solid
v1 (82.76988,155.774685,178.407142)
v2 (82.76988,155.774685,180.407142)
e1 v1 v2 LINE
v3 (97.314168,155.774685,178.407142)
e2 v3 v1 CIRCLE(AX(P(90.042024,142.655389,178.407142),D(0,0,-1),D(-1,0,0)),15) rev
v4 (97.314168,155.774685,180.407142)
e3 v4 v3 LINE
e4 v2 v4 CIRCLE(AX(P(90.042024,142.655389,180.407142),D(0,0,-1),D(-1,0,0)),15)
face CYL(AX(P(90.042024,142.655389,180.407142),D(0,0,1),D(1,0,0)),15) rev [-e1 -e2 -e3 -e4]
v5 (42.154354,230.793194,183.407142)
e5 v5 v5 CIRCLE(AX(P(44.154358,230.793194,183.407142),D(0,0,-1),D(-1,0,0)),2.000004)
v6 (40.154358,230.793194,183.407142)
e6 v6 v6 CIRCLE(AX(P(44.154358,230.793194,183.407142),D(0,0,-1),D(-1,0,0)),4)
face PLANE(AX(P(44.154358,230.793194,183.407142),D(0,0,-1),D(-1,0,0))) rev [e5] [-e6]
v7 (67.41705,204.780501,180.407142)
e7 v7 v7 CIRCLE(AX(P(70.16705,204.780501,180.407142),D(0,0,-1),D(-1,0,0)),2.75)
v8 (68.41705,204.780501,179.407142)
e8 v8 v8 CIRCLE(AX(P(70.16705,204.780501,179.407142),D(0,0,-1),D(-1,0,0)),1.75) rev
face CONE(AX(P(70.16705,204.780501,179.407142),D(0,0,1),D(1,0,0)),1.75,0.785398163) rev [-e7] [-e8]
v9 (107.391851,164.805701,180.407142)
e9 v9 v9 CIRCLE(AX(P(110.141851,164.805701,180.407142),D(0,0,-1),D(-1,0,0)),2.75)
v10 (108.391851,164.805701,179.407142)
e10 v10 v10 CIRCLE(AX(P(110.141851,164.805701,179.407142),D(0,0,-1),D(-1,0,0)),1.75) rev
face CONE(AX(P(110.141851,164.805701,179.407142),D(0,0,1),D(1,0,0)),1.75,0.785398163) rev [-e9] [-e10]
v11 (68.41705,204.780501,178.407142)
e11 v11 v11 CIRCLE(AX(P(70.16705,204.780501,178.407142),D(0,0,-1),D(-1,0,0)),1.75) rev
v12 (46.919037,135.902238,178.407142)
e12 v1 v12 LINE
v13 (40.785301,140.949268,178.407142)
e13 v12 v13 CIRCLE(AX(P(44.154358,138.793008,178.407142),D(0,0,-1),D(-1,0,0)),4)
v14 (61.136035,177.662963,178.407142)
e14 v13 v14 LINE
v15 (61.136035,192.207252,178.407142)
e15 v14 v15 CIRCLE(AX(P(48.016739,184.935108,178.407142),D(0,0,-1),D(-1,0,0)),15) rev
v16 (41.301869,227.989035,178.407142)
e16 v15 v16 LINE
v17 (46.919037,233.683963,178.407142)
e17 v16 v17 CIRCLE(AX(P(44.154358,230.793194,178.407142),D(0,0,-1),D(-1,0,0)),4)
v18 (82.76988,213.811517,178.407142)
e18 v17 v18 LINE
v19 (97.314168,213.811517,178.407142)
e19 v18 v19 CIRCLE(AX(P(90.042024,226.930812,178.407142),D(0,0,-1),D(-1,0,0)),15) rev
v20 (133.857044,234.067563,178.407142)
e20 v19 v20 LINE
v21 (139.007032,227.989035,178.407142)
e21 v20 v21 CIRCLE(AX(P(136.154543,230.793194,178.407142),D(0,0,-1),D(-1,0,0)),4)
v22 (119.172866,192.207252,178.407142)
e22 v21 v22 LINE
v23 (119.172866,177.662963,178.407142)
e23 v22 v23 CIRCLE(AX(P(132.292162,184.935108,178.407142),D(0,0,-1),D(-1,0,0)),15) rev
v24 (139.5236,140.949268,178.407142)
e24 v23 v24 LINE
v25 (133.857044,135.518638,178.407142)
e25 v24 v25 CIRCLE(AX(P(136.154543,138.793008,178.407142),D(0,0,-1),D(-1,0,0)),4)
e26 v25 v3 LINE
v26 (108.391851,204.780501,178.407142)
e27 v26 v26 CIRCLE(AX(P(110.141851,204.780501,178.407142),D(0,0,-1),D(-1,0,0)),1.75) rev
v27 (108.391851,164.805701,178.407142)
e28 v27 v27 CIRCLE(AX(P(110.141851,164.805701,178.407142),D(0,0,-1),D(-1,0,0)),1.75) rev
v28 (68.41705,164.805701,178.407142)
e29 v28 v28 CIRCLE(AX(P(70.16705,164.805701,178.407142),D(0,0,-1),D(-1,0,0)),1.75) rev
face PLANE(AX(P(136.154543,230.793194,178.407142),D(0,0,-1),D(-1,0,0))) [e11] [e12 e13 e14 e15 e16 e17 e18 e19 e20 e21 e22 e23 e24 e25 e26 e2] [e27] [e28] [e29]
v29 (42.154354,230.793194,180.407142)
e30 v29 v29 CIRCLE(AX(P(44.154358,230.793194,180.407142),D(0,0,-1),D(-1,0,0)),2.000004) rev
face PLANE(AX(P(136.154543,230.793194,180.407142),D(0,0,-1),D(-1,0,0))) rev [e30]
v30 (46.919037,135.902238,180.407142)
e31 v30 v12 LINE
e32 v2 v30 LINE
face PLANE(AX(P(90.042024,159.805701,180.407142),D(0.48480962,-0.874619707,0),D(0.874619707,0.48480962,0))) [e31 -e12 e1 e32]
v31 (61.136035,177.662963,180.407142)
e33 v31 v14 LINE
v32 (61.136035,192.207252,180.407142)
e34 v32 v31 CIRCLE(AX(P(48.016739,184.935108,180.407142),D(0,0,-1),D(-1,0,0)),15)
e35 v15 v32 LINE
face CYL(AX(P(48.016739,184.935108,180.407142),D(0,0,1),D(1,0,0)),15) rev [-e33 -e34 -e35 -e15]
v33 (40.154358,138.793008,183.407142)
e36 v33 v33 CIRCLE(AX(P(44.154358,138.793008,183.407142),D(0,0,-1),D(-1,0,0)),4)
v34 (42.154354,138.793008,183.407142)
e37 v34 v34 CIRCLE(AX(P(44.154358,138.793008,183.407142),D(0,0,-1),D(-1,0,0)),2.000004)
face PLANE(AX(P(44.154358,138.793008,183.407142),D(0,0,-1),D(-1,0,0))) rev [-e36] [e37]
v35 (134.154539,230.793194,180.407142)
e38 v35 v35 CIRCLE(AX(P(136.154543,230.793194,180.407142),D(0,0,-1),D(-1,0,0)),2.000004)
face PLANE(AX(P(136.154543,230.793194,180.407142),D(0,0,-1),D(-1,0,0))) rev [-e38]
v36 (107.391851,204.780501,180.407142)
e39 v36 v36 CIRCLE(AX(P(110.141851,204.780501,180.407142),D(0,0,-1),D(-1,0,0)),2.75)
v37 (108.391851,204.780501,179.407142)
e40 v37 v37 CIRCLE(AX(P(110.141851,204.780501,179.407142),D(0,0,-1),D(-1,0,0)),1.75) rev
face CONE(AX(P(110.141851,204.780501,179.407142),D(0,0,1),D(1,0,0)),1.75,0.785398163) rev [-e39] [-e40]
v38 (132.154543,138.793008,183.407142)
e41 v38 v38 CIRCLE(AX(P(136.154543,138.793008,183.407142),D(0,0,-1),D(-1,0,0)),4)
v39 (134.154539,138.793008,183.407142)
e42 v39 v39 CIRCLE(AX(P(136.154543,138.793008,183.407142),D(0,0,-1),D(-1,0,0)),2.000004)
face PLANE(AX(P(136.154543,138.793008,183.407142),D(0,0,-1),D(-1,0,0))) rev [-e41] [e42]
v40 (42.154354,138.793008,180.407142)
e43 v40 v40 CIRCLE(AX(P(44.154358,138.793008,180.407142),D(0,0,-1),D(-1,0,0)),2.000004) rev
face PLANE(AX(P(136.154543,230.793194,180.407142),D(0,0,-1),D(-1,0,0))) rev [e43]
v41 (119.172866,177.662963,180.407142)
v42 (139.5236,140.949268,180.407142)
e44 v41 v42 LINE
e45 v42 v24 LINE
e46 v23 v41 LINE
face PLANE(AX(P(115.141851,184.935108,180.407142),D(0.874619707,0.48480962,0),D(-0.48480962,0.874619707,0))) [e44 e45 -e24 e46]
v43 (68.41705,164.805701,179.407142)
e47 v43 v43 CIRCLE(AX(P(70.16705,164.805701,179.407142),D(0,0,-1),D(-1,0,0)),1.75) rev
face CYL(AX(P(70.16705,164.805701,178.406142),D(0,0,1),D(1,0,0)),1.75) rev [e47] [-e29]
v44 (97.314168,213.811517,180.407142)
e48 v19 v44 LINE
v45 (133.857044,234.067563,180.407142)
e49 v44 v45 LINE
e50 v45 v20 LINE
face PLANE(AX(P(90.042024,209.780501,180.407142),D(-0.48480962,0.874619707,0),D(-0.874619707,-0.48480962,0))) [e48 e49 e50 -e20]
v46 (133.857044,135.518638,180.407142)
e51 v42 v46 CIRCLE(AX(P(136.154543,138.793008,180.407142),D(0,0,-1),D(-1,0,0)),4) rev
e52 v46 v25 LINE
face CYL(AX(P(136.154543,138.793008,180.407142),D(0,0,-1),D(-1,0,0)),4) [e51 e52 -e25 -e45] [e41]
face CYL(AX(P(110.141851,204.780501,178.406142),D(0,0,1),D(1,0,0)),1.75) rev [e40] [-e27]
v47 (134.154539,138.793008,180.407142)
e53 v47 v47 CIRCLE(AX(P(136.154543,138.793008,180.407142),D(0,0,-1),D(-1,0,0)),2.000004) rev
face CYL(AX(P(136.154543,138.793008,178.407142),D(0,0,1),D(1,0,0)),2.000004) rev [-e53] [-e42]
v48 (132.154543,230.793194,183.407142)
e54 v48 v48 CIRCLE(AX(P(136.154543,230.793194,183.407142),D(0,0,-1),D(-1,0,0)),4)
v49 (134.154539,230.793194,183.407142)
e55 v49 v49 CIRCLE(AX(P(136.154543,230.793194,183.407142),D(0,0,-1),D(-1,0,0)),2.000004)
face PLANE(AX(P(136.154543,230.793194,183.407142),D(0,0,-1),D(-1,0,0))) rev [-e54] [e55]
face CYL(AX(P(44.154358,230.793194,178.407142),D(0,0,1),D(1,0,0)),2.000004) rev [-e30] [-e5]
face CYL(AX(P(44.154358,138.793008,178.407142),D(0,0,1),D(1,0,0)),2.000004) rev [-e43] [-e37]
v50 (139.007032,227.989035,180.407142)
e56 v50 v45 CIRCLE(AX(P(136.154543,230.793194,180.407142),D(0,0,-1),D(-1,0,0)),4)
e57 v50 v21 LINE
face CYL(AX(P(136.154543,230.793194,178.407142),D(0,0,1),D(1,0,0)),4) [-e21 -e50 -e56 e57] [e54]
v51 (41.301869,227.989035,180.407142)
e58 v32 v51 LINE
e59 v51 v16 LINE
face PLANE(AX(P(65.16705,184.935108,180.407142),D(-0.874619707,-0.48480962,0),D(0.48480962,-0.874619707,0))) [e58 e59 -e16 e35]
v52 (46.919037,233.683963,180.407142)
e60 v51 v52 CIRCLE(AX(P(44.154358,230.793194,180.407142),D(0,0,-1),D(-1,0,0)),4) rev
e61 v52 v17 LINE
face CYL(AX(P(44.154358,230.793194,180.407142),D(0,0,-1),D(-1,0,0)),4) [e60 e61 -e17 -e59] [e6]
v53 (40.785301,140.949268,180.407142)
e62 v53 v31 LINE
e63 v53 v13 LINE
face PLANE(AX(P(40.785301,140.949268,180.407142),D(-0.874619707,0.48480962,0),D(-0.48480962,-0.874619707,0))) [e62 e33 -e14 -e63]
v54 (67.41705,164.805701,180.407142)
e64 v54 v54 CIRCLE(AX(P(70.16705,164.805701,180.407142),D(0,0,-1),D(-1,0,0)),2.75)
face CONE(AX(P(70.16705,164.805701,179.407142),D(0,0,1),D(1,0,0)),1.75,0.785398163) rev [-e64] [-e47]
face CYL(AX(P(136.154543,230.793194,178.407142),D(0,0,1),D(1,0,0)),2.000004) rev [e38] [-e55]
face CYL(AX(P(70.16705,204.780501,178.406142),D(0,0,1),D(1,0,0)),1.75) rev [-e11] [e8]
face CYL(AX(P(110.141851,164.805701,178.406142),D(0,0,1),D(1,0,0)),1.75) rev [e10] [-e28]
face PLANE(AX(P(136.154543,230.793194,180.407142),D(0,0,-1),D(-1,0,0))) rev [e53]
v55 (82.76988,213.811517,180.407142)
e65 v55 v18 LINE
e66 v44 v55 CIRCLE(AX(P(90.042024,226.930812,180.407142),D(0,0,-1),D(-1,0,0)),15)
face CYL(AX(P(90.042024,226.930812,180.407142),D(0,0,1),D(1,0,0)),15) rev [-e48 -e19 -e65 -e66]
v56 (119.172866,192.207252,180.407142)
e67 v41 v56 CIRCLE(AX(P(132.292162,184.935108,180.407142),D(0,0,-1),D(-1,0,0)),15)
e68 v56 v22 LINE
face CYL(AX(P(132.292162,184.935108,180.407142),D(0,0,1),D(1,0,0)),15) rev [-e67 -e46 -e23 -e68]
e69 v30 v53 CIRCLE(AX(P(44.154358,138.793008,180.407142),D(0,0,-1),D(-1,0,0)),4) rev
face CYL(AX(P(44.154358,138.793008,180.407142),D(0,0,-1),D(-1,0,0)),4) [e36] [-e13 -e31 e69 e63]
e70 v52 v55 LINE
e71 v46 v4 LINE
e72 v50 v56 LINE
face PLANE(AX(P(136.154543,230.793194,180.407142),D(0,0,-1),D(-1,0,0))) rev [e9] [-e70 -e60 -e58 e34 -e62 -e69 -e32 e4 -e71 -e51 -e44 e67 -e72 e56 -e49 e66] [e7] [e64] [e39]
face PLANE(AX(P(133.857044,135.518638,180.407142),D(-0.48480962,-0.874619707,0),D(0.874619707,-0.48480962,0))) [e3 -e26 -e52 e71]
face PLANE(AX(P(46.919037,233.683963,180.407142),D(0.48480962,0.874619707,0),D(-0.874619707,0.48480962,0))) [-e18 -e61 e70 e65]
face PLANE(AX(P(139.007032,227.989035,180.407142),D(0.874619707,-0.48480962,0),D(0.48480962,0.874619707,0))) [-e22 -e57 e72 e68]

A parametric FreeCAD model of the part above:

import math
import FreeCAD as App
import Part
import Sketcher
Q = App.Units.Quantity


def edges_at(feature, points):
    """Names of the edges that pass closest to the given points."""
    edges = feature.Shape.Edges
    near = lambda p: min(range(len(edges)), key=lambda i: edges[i].distToShape(Part.Vertex(*p))[0])
    return sorted({f"Edge{near(p) + 1}" for p in points})

doc = App.newDocument("Part")
body = doc.addObject("PartDesign::Body", "Body")

sketch1 = body.newObject("Sketcher::SketchObject", "Sketch")
sketch1.AttachmentSupport = (doc.getObject("XY_Plane"), [""])
sketch1.MapMode = "FlatFace"
sketch1.AttachmentOffset = App.Placement(App.Vector(0, 0, 183.407142), App.Rotation())
sketch1.addGeometry([
    Part.Circle(App.Vector(136.2, 230.8, 0), App.Vector(0, 0, 1), 4),
    Part.Circle(App.Vector(136.2, 230.8, 0), App.Vector(0, 0, 1), 2),
], False)
sketch1.addConstraint([
    Sketcher.Constraint("Coincident", 1, 3, 0, 3),
    Sketcher.Constraint("Diameter", 0, 8.0),
    Sketcher.Constraint("Diameter", 1, 4.000008),
    Sketcher.Constraint("DistanceX", -1, 1, 0, 3, 136.154543),
    Sketcher.Constraint("DistanceY", -1, 1, 0, 3, 230.793194),
])
pad1 = body.newObject("PartDesign::Pad", "Pad")
pad1.Profile = sketch1
pad1.Length = 5
pad1.Reversed = True
body2 = doc.addObject("PartDesign::Body", "Body001")

sketch2 = body2.newObject("Sketcher::SketchObject", "Sketch001")
sketch2.AttachmentSupport = (doc.getObject("XY_Plane001"), [""])
sketch2.MapMode = "FlatFace"
sketch2.AttachmentOffset = App.Placement(App.Vector(0, 0, 183.407142), App.Rotation())
sketch2.addGeometry([
    Part.Circle(App.Vector(44.2, 230.8, 0), App.Vector(0, 0, 1), 4),
    Part.Circle(App.Vector(44.2, 230.8, 0), App.Vector(0, 0, 1), 2),
], False)
sketch2.addConstraint([
    Sketcher.Constraint("Coincident", 1, 3, 0, 3),
    Sketcher.Constraint("Diameter", 0, 8.0),
    Sketcher.Constraint("Diameter", 1, 4.000008),
    Sketcher.Constraint("DistanceX", -1, 1, 0, 3, 44.154358),
    Sketcher.Constraint("DistanceY", -1, 1, 0, 3, 230.793194),
])
pad2 = body2.newObject("PartDesign::Pad", "Pad001")
pad2.Profile = sketch2
pad2.Length = 5
pad2.Reversed = True
body3 = doc.addObject("PartDesign::Body", "Body002")

sketch3 = body3.newObject("Sketcher::SketchObject", "Sketch002")
sketch3.AttachmentSupport = (doc.getObject("XY_Plane002"), [""])
sketch3.MapMode = "FlatFace"
sketch3.AttachmentOffset = App.Placement(App.Vector(0, 0, 183.407142), App.Rotation())
sketch3.addGeometry([
    Part.Circle(App.Vector(44.2, 138.8, 0), App.Vector(0, 0, 1), 4),
    Part.Circle(App.Vector(44.2, 138.8, 0), App.Vector(0, 0, 1), 2),
], False)
sketch3.addConstraint([
    Sketcher.Constraint("Coincident", 1, 3, 0, 3),
    Sketcher.Constraint("Diameter", 0, 8.0),
    Sketcher.Constraint("Diameter", 1, 4.000008),
    Sketcher.Constraint("DistanceY", -1, 1, 0, 3, 138.793008),
    Sketcher.Constraint("DistanceX", -1, 1, 0, 3, 44.154358),
])
pad3 = body3.newObject("PartDesign::Pad", "Pad002")
pad3.Profile = sketch3
pad3.Length = 5
pad3.Reversed = True
body4 = doc.addObject("PartDesign::Body", "Body003")

sketch4 = body4.newObject("Sketcher::SketchObject", "Sketch003")
sketch4.AttachmentSupport = (doc.getObject("XY_Plane003"), [""])
sketch4.MapMode = "FlatFace"
sketch4.AttachmentOffset = App.Placement(App.Vector(0, 0, 183.407142), App.Rotation())
sketch4.addGeometry([
    Part.Circle(App.Vector(136.2, 138.8, 0), App.Vector(0, 0, 1), 4),
    Part.Circle(App.Vector(136.2, 138.8, 0), App.Vector(0, 0, 1), 2),
], False)
sketch4.addConstraint([
    Sketcher.Constraint("Coincident", 1, 3, 0, 3),
    Sketcher.Constraint("Diameter", 0, 8.0),
    Sketcher.Constraint("Diameter", 1, 4.000008),
    Sketcher.Constraint("DistanceY", -1, 1, 0, 3, 138.793008),
    Sketcher.Constraint("DistanceX", -1, 1, 0, 3, 136.154543),
])
pad4 = body4.newObject("PartDesign::Pad", "Pad003")
pad4.Profile = sketch4
pad4.Length = 5
pad4.Reversed = True
body.AllowCompound = True
doc.recompute()

boolean = body.newObject("PartDesign::Boolean", "Boolean")
boolean.Type = "Fuse"
boolean.addObjects([body2])
doc.recompute()

boolean2 = body.newObject("PartDesign::Boolean", "Boolean001")
boolean2.Type = "Fuse"
boolean2.addObjects([body3])
doc.recompute()

boolean3 = body.newObject("PartDesign::Boolean", "Boolean002")
boolean3.Type = "Fuse"
boolean3.addObjects([body4])

sketch5 = body.newObject("Sketcher::SketchObject", "Sketch004")
sketch5.AttachmentSupport = (doc.getObject("XY_Plane"), [""])
sketch5.MapMode = "FlatFace"
sketch5.AttachmentOffset = App.Placement(App.Vector(0, 0, 178.407142), App.Rotation())
sketch5.addGeometry([
    Part.LineSegment(App.Vector(139, 228, 0), App.Vector(115.1, 184.9, 0)),
    Part.LineSegment(App.Vector(115.1, 184.9, 0), App.Vector(139.5, 140.9, 0)),
    Part.ArcOfCircle(Part.Circle(App.Vector(136.2, 138.8, 0), App.Vector(0, 0, 1), 4), math.radians(-125), math.radians(33)),
    Part.LineSegment(App.Vector(133.9, 135.5, 0), App.Vector(90, 159.8, 0)),
    Part.LineSegment(App.Vector(90, 159.8, 0), App.Vector(46.9, 135.9, 0)),
    Part.ArcOfCircle(Part.Circle(App.Vector(44.2, 138.8, 0), App.Vector(0, 0, 1), 4), math.radians(147), math.radians(314)),
    Part.LineSegment(App.Vector(40.8, 140.9, 0), App.Vector(65.2, 184.9, 0)),
    Part.LineSegment(App.Vector(65.2, 184.9, 0), App.Vector(41.3, 228, 0)),
    Part.ArcOfCircle(Part.Circle(App.Vector(44.2, 230.8, 0), App.Vector(0, 0, 1), 4), math.radians(46), math.radians(225)),
    Part.LineSegment(App.Vector(46.9, 233.7, 0), App.Vector(90, 209.8, 0)),
    Part.LineSegment(App.Vector(90, 209.8, 0), App.Vector(133.9, 234.1, 0)),
    Part.ArcOfCircle(Part.Circle(App.Vector(136.2, 230.8, 0), App.Vector(0, 0, 1), 4), math.radians(-45), math.radians(125)),
], False)
sketch5.addConstraint([
    Sketcher.Constraint("Coincident", 0, 2, 1, 1),
    Sketcher.Constraint("Coincident", 1, 2, 2, 2),
    Sketcher.Constraint("Coincident", 2, 1, 3, 1),
    Sketcher.Constraint("Coincident", 3, 2, 4, 1),
    Sketcher.Constraint("Coincident", 4, 2, 5, 2),
    Sketcher.Constraint("Coincident", 5, 1, 6, 1),
    Sketcher.Constraint("Coincident", 6, 2, 7, 1),
    Sketcher.Constraint("Coincident", 7, 2, 8, 2),
    Sketcher.Constraint("Coincident", 8, 1, 9, 1),
    Sketcher.Constraint("Coincident", 9, 2, 10, 1),
    Sketcher.Constraint("Coincident", 10, 2, 11, 2),
    Sketcher.Constraint("Coincident", 11, 1, 0, 1),
    Sketcher.Constraint("Equal", 2, 5),
    Sketcher.Constraint("Equal", 5, 8),
    Sketcher.Constraint("Equal", 8, 11),
    Sketcher.Constraint("Perpendicular", 0, 3),
    Sketcher.Constraint("Perpendicular", 1, 4),
    Sketcher.Constraint("Perpendicular", 3, 6),
    Sketcher.Constraint("Perpendicular", 4, 7),
    Sketcher.Constraint("Perpendicular", 6, 9),
    Sketcher.Constraint("Perpendicular", 7, 10),
    Sketcher.Constraint("Horizontal", 2, 3, 5, 3),
    Sketcher.Constraint("Horizontal", 8, 3, 11, 3),
    Sketcher.Constraint("Horizontal", 1, 2, 5, 1),
    Sketcher.Constraint("Horizontal", 0, 2, 6, 2),
    Sketcher.Constraint("Horizontal", 7, 2, 11, 1),
    Sketcher.Constraint("Vertical", 5, 3, 8, 3),
    Sketcher.Constraint("Vertical", 2, 3, 11, 3),
    Sketcher.Constraint("Vertical", 4, 2, 8, 1),
    Sketcher.Constraint("Vertical", 3, 2, 9, 2),
    Sketcher.Constraint("Radius", 2, 4.0),
    Sketcher.Constraint("Angle", 0, Q("-119 deg")),
    Sketcher.Constraint("DistanceX", -1, 1, 1, 2, 139.5236),
    Sketcher.Constraint("DistanceY", -1, 1, 3, 2, 159.805701),
    Sketcher.Constraint("DistanceX", -1, 1, 5, 1, 40.785301),
    Sketcher.Constraint("DistanceY", -1, 1, 9, 2, 209.780501),
    Sketcher.Constraint("DistanceY", 2, 3, 0, 2, 46.1421),
    Sketcher.Constraint("DistanceX", 2, 1, 2, 3, 2.297499),
    Sketcher.Constraint("DistanceY", 2, 1, 4, 2, 0.3836),
    Sketcher.Constraint("DistanceX", 6, 2, 0, 2, 49.974801),
])
pad5 = body.newObject("PartDesign::Pad", "Pad004")
pad5.Profile = sketch5
pad5.Length = 2
doc.recompute()

fillet = body.newObject("PartDesign::Fillet", "Fillet")
fillet.Base = (pad5, edges_at(pad5, [
    (90.042, 209.781, 179.407),
    (65.167, 184.935, 179.407),
    (90.042, 159.806, 179.407),
    (115.142, 184.935, 179.407),
]))
fillet.Radius = 15

sketch6 = body.newObject("Sketcher::SketchObject", "Sketch005")
sketch6.AttachmentSupport = (doc.getObject("XY_Plane"), [""])
sketch6.MapMode = "FlatFace"
sketch6.AttachmentOffset = App.Placement(App.Vector(0, 0, 180.407142), App.Rotation())
sketch6.addGeometry(Part.Circle(App.Vector(70.2, 204.8, 0), App.Vector(0, 0, 1), 1.8), False)
sketch6.addConstraint([
    Sketcher.Constraint("Diameter", 0, 3.5),
    Sketcher.Constraint("DistanceY", -1, 1, 0, 3, 204.780501),
    Sketcher.Constraint("DistanceX", -1, 1, 0, 3, 70.16705),
])
pocket1 = body.newObject("PartDesign::Pocket", "Pocket")
pocket1.Profile = sketch6
pocket1.Type = "UpToFirst"

sketch7 = body.newObject("Sketcher::SketchObject", "Sketch006")
sketch7.AttachmentSupport = (doc.getObject("XY_Plane"), [""])
sketch7.MapMode = "FlatFace"
sketch7.AttachmentOffset = App.Placement(App.Vector(0, 0, 180.407142), App.Rotation())
sketch7.addGeometry(Part.Circle(App.Vector(110.1, 204.8, 0), App.Vector(0, 0, 1), 1.8), False)
sketch7.addConstraint([
    Sketcher.Constraint("Diameter", 0, 3.5),
    Sketcher.Constraint("DistanceY", -1, 1, 0, 3, 204.780501),
    Sketcher.Constraint("DistanceX", -1, 1, 0, 3, 110.141851),
])
pocket2 = body.newObject("PartDesign::Pocket", "Pocket001")
pocket2.Profile = sketch7
pocket2.Type = "UpToFirst"

sketch8 = body.newObject("Sketcher::SketchObject", "Sketch007")
sketch8.AttachmentSupport = (doc.getObject("XY_Plane"), [""])
sketch8.MapMode = "FlatFace"
sketch8.AttachmentOffset = App.Placement(App.Vector(0, 0, 180.407142), App.Rotation())
sketch8.addGeometry(Part.Circle(App.Vector(110.1, 164.8, 0), App.Vector(0, 0, 1), 1.8), False)
sketch8.addConstraint([
    Sketcher.Constraint("Diameter", 0, 3.5),
    Sketcher.Constraint("DistanceY", -1, 1, 0, 3, 164.805701),
    Sketcher.Constraint("DistanceX", -1, 1, 0, 3, 110.141851),
])
pocket3 = body.newObject("PartDesign::Pocket", "Pocket002")
pocket3.Profile = sketch8
pocket3.Type = "UpToFirst"

sketch9 = body.newObject("Sketcher::SketchObject", "Sketch008")
sketch9.AttachmentSupport = (doc.getObject("XY_Plane"), [""])
sketch9.MapMode = "FlatFace"
sketch9.AttachmentOffset = App.Placement(App.Vector(0, 0, 180.407142), App.Rotation())
sketch9.addGeometry(Part.Circle(App.Vector(70.2, 164.8, 0), App.Vector(0, 0, 1), 1.8), False)
sketch9.addConstraint([
    Sketcher.Constraint("Diameter", 0, 3.5),
    Sketcher.Constraint("DistanceY", -1, 1, 0, 3, 164.805701),
    Sketcher.Constraint("DistanceX", -1, 1, 0, 3, 70.16705),
])
pocket4 = body.newObject("PartDesign::Pocket", "Pocket003")
pocket4.Profile = sketch9
pocket4.Type = "UpToFirst"
doc.recompute()

chamfer = body.newObject("PartDesign::Chamfer", "Chamfer")
chamfer.Base = (pocket4, edges_at(pocket4, [
    (68.417, 164.806, 180.407),
    (108.392, 164.806, 180.407),
    (108.392, 204.781, 180.407),
    (68.417, 204.781, 180.407),
]))
chamfer.Size = 1

doc.recompute()
